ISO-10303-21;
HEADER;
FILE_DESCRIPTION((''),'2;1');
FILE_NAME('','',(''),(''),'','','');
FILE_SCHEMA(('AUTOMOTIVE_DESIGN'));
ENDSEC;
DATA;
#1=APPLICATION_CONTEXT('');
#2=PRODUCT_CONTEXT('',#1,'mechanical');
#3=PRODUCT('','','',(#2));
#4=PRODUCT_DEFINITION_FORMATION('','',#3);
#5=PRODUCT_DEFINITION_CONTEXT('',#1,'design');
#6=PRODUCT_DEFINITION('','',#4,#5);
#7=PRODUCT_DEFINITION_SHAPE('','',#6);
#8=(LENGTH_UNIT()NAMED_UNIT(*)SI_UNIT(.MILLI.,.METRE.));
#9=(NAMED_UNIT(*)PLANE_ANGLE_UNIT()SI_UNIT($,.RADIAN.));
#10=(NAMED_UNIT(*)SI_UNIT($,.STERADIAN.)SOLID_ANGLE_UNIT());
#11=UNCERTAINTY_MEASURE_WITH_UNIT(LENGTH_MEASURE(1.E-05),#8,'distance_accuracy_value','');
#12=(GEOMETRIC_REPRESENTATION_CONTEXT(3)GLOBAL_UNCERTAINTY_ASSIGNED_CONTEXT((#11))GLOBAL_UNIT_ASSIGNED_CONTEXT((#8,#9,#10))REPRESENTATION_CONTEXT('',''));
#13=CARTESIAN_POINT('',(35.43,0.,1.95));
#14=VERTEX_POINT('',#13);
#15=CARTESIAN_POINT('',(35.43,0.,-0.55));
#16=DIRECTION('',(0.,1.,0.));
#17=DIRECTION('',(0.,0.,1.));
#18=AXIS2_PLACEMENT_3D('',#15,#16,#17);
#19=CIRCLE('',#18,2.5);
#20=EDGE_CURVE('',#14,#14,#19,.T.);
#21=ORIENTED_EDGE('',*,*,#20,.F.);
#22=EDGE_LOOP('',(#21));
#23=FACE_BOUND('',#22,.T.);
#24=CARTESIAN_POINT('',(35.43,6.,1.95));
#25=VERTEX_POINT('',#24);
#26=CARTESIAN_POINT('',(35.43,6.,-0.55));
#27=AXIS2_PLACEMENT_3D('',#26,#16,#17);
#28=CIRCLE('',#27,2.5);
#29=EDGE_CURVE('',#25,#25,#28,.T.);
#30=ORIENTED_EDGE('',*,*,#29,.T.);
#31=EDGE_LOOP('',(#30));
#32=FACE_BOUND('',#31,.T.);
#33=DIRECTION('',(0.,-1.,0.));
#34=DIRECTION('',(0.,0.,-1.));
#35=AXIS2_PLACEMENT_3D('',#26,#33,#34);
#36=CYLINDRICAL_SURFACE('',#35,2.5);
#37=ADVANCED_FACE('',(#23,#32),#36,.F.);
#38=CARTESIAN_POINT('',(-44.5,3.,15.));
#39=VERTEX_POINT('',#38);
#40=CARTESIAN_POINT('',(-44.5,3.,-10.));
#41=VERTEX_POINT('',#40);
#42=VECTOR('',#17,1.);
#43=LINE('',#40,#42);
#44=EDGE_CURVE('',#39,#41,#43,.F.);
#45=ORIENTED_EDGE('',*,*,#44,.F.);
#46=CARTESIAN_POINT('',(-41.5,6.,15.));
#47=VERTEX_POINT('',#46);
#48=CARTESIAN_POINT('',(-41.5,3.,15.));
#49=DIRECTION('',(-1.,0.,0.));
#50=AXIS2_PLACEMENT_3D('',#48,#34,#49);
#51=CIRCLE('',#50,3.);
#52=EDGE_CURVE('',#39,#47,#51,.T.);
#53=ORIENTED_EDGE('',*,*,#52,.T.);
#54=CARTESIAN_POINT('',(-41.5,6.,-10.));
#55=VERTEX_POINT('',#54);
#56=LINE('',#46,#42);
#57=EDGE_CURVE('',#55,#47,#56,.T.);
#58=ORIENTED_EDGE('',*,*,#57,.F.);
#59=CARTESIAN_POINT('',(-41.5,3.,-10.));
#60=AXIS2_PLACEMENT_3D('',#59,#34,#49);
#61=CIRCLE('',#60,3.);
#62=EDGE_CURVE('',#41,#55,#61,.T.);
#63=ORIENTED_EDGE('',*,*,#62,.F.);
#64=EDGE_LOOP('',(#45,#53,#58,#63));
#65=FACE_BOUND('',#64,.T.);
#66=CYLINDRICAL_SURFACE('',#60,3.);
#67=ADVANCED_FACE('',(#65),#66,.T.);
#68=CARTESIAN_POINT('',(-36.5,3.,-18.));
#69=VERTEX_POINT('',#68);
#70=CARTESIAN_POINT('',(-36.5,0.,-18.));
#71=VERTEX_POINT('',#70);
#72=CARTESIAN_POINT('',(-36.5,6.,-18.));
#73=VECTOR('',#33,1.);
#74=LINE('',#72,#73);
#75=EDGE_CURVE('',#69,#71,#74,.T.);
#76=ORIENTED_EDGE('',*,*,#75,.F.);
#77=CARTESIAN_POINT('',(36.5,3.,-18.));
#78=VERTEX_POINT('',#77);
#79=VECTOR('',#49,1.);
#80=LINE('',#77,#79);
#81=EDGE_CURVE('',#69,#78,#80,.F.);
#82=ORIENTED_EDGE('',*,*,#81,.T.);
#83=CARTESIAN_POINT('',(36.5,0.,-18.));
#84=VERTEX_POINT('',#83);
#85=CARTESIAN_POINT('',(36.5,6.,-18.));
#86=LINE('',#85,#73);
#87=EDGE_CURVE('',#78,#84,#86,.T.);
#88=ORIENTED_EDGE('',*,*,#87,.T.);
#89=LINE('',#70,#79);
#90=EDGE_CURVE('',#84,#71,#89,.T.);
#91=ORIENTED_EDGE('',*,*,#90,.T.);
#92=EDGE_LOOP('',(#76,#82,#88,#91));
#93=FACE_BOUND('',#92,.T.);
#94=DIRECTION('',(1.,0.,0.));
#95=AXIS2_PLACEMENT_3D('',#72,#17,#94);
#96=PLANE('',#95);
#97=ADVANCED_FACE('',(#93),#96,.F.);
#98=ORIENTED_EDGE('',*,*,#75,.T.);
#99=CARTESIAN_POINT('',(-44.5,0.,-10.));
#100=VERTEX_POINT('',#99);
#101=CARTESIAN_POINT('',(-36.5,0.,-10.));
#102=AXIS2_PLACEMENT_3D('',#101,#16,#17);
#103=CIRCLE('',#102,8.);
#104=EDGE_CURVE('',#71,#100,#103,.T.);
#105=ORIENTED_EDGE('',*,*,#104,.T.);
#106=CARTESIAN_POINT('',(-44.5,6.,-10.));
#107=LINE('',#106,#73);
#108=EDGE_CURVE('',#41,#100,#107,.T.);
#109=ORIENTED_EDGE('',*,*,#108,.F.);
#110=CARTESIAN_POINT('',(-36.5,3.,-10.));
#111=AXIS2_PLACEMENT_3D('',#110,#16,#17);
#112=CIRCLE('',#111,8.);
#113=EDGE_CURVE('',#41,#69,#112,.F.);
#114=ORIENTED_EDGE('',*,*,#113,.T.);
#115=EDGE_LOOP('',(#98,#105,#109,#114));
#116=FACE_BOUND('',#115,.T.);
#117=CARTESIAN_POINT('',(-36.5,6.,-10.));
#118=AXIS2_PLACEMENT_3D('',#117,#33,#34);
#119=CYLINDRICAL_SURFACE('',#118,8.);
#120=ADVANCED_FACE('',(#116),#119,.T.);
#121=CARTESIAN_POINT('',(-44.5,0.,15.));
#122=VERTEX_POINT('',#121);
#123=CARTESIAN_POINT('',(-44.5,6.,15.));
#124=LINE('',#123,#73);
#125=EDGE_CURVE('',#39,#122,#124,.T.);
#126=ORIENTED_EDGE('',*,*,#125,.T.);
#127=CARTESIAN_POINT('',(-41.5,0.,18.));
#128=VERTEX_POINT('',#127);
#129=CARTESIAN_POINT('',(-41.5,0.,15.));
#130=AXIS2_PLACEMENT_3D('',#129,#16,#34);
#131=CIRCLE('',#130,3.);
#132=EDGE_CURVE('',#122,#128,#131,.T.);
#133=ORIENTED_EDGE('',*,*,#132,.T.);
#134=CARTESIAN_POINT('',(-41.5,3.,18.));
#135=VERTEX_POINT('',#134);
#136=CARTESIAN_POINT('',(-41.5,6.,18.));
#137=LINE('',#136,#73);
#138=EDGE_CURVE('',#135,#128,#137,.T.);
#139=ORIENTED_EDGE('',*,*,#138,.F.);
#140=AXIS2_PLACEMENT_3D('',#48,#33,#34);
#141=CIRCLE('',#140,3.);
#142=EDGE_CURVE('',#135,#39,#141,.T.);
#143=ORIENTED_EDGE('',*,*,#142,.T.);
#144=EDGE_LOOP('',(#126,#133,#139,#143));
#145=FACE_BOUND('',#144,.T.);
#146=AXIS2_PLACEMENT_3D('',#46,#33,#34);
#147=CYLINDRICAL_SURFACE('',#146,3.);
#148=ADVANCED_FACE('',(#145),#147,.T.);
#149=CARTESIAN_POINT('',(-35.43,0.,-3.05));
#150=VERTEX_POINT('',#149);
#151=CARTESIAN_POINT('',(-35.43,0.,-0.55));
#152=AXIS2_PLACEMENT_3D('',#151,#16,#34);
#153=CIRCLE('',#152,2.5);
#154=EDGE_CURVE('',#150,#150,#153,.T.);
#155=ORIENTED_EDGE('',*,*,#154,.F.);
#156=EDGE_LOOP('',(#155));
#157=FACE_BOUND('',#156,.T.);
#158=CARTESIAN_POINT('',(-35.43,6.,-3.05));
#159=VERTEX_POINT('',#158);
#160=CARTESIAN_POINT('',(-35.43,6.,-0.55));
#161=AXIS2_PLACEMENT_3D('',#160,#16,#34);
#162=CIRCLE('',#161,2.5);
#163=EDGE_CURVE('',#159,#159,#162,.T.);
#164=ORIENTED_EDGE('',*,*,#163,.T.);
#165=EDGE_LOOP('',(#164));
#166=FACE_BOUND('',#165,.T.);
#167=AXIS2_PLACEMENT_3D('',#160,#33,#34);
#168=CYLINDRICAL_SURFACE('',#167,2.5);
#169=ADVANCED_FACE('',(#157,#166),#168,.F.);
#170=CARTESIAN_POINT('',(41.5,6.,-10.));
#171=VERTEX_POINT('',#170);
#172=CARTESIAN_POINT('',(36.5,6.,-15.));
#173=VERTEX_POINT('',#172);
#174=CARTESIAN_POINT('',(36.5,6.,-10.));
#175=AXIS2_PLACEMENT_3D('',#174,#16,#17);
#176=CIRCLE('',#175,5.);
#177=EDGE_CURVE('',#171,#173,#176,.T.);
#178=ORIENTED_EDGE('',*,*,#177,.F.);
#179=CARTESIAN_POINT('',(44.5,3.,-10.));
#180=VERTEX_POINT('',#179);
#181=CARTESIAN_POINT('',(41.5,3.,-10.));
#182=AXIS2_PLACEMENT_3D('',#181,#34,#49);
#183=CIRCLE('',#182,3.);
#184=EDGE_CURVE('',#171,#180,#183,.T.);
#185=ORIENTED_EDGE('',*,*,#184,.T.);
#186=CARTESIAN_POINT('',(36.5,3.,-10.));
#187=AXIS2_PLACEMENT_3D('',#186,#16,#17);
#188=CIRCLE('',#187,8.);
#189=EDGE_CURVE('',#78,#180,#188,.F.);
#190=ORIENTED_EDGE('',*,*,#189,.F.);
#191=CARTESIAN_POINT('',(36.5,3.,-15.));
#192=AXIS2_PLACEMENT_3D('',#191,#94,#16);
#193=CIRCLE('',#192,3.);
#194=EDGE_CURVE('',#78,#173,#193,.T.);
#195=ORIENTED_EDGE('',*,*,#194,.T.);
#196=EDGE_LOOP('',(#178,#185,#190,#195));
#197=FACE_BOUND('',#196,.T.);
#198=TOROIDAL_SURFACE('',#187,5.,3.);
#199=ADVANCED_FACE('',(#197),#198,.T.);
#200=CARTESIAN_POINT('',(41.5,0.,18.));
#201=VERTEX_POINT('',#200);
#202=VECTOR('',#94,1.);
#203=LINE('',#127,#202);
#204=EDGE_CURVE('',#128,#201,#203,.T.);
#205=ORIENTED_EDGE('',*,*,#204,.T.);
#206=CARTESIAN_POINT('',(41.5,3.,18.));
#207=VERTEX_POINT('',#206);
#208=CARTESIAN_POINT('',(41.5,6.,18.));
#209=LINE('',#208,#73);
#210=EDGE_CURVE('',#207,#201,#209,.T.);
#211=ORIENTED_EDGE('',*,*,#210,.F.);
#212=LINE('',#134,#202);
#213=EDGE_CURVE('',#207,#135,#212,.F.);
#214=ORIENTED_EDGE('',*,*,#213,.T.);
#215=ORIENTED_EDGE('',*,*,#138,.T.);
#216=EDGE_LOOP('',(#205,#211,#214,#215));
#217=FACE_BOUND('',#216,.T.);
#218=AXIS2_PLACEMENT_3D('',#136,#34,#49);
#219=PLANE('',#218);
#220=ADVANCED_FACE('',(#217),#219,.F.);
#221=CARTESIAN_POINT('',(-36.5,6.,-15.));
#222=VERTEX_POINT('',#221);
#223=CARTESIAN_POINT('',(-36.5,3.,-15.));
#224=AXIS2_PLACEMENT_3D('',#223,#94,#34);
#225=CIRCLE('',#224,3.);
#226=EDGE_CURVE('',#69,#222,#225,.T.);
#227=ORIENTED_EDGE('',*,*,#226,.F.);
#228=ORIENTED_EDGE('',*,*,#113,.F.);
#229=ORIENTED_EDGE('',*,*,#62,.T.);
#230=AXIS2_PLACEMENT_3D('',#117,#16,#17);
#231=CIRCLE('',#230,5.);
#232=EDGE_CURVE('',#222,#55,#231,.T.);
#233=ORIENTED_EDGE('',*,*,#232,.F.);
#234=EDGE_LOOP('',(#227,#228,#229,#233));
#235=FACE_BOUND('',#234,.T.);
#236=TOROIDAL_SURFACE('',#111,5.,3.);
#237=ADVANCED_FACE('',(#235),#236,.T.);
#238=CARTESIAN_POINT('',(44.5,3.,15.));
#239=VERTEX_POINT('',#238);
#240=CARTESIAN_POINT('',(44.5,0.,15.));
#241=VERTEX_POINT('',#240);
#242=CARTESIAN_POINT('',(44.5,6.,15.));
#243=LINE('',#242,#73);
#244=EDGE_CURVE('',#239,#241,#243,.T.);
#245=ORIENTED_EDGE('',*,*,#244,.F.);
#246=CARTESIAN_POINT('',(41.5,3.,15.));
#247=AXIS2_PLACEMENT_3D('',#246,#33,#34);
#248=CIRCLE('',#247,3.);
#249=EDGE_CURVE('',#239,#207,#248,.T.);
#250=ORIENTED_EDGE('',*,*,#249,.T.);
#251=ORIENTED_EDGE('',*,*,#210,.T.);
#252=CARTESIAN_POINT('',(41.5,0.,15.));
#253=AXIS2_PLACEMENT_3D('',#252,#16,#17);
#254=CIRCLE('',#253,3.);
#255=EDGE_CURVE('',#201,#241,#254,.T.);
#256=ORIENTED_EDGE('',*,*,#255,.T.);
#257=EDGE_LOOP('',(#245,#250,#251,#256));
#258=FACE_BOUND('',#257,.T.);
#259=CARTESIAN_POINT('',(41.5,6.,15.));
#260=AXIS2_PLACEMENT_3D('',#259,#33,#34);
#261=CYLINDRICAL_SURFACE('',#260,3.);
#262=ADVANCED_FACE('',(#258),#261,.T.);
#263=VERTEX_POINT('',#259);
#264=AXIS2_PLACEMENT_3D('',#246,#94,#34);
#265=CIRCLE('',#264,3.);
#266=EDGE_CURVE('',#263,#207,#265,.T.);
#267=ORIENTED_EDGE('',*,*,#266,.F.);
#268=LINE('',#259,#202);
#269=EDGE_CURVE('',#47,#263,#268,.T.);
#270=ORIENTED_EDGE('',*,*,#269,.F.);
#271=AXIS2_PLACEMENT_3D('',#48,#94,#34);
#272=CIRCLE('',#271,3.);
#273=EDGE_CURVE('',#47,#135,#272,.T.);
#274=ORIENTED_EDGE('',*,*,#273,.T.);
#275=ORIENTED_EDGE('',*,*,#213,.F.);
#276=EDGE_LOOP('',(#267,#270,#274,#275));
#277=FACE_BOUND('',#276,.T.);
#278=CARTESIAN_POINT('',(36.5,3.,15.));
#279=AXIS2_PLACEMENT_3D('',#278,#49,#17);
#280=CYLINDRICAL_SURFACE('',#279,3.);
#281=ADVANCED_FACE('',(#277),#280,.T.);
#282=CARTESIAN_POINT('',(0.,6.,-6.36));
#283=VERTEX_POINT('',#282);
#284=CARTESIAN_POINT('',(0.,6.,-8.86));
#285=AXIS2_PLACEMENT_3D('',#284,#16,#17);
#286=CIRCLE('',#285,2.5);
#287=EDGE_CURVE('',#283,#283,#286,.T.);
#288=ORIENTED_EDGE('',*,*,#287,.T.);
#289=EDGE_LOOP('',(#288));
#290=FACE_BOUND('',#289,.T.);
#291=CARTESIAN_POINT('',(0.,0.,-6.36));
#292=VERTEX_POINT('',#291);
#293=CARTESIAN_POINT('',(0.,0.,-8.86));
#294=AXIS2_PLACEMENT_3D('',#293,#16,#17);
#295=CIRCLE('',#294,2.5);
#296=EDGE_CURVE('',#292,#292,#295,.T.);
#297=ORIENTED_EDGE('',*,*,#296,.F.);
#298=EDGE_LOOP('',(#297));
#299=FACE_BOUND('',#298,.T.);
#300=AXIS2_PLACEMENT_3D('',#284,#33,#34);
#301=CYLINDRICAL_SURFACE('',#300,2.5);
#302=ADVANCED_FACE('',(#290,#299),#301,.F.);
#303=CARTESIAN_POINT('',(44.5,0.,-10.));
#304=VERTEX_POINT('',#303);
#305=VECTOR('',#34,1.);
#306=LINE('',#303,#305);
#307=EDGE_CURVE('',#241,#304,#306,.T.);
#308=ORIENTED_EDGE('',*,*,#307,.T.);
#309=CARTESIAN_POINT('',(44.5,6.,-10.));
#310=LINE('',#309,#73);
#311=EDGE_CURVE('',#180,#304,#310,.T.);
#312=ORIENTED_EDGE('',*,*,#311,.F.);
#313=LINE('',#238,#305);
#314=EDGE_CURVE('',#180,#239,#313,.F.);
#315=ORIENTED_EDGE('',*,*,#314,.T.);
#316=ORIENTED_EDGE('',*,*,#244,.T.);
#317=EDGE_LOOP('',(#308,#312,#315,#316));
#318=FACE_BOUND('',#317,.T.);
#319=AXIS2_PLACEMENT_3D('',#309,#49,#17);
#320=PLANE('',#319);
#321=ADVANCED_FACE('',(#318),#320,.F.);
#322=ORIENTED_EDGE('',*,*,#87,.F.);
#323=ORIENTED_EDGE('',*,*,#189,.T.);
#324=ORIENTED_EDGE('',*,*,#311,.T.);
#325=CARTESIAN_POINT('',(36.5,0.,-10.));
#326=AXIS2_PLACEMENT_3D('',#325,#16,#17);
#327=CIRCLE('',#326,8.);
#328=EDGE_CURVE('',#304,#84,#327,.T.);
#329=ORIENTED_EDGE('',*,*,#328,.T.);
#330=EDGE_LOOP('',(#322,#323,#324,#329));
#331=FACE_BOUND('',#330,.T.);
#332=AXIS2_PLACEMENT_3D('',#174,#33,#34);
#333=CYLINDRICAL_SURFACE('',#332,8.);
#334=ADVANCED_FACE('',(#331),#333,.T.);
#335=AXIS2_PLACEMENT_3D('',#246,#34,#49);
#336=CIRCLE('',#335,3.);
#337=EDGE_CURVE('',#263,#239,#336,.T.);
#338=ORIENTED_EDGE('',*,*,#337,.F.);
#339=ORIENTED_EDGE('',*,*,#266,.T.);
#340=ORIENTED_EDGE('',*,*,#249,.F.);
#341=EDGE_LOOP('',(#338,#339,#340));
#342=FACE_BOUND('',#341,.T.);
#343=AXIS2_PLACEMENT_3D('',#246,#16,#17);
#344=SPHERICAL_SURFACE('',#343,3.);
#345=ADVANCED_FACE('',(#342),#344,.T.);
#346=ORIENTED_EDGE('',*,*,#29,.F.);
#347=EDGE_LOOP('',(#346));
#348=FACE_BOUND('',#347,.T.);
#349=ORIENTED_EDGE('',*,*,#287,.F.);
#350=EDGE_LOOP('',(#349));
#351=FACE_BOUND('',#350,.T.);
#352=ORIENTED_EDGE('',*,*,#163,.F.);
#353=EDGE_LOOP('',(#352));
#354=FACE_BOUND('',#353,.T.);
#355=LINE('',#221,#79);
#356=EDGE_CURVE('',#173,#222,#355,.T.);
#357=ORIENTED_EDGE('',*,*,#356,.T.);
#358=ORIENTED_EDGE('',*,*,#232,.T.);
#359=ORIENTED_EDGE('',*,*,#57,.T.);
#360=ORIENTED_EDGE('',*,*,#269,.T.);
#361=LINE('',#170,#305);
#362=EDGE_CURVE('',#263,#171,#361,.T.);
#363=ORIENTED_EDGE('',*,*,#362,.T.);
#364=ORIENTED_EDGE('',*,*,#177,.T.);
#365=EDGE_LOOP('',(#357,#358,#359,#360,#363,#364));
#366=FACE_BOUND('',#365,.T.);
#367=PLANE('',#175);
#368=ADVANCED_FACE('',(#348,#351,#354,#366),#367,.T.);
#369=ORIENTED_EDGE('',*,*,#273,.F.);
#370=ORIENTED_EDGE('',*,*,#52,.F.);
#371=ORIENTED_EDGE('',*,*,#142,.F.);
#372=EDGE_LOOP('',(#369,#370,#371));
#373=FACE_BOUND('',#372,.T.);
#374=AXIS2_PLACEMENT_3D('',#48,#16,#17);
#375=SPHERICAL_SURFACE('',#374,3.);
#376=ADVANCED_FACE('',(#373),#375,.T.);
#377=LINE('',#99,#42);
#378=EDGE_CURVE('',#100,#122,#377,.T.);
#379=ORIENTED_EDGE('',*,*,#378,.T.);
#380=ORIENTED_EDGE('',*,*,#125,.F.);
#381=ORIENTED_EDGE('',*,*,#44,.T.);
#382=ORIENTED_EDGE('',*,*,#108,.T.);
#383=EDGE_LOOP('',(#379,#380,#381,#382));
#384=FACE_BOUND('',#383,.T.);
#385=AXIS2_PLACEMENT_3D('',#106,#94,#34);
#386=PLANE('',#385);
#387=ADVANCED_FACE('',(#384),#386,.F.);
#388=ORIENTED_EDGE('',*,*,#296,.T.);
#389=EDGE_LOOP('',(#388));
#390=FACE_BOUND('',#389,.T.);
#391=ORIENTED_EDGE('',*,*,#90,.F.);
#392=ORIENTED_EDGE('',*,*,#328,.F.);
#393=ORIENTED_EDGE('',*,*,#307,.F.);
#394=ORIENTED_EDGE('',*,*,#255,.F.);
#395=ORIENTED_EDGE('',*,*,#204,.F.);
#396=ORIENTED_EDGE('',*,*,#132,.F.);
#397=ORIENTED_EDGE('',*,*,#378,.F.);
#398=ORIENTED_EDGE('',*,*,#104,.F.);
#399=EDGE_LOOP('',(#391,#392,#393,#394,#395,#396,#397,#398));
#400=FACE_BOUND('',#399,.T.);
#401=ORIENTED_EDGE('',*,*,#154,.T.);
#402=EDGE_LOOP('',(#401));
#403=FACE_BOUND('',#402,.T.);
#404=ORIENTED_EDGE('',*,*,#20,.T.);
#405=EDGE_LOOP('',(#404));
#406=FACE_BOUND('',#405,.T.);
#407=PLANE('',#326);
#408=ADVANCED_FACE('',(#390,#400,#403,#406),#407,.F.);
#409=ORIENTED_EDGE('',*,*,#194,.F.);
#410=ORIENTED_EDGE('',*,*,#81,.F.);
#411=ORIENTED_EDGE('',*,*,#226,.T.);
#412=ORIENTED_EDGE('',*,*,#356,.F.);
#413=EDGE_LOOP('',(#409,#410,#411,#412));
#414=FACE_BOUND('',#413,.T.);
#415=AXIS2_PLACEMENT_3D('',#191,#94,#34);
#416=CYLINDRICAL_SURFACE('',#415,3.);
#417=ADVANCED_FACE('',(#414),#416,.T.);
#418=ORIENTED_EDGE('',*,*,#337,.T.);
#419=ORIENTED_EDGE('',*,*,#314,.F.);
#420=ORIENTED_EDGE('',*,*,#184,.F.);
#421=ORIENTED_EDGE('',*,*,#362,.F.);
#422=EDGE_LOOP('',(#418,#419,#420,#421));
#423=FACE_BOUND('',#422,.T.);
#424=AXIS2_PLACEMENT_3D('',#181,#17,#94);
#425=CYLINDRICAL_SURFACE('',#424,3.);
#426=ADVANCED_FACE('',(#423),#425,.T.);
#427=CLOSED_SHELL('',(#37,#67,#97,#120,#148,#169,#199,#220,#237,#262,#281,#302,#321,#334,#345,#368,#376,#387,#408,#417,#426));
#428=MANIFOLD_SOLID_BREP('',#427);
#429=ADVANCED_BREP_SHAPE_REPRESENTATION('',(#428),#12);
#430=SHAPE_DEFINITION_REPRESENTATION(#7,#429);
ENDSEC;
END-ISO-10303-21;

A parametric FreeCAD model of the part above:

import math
import FreeCAD as App
import Part
import Sketcher
from FreeCAD import Vector
Q = App.Units.Quantity


def edges_at(feature, points):
    """Names of the edges that pass closest to the given points."""
    edges = feature.Shape.Edges
    near = lambda p: min(range(len(edges)), key=lambda i: edges[i].distToShape(Part.Vertex(*p))[0])
    return sorted({f"Edge{near(p) + 1}" for p in points})

doc = App.newDocument("Part")
body = doc.addObject("PartDesign::Body", "Body")

# Sketch on XZ plane
sketch1 = doc.addObject("Sketcher::SketchObject", "Sketch")
body.addObject(sketch1)
sketch1.AttachmentSupport = (doc.XZ_Plane, [""])
sketch1.MapMode = "FlatFace"
sketch1.addGeometry([
    Part.LineSegment(Vector(36.5, -18, 0), Vector(-36.5, -18, 0)),  # 0
    Part.ArcOfCircle(Part.Circle(Vector(-36.5, -10, 0), Vector(0, 0, 1), 8), math.radians(-180), math.radians(-90)),  # 1
    Part.LineSegment(Vector(-44.5, -10, 0), Vector(-44.5, 15, 0)),  # 2
    Part.ArcOfCircle(Part.Circle(Vector(-41.5, 15, 0), Vector(0, 0, 1), 3), math.radians(90), math.radians(180)),  # 3
    Part.LineSegment(Vector(-41.5, 18, 0), Vector(41.5, 18, 0)),  # 4
    Part.ArcOfCircle(Part.Circle(Vector(41.5, 15, 0), Vector(0, 0, 1), 3), math.radians(0), math.radians(90)),  # 5
    Part.LineSegment(Vector(44.5, 15, 0), Vector(44.5, -10, 0)),  # 6
    Part.ArcOfCircle(Part.Circle(Vector(36.5, -10, 0), Vector(0, 0, 1), 8), math.radians(-90), math.radians(0)),  # 7
    Part.Circle(Vector(35.4, -0.6, 0), Vector(0, 0, 1), 2.5),  # 8
    Part.Circle(Vector(-35.4, -0.6, 0), Vector(0, 0, 1), 2.5),  # 9
    Part.Circle(Vector(0, -8.9, 0), Vector(0, 0, 1), 2.5),  # 10
], False)
sketch1.addConstraint([
    Sketcher.Constraint("Tangent", 0, 2, 1, 2),
    Sketcher.Constraint("Tangent", 1, 1, 2, 1),
    Sketcher.Constraint("Tangent", 2, 2, 3, 2),
    Sketcher.Constraint("Tangent", 3, 1, 4, 1),
    Sketcher.Constraint("Tangent", 4, 2, 5, 2),
    Sketcher.Constraint("Tangent", 5, 1, 6, 1),
    Sketcher.Constraint("Tangent", 6, 2, 7, 2),
    Sketcher.Constraint("Tangent", 7, 1, 0, 1),
    Sketcher.Constraint("Horizontal", 0),
    Sketcher.Constraint("Vertical", 2),
    Sketcher.Constraint("Horizontal", 4),
    Sketcher.Constraint("Vertical", 6),
    Sketcher.Constraint("Equal", 3, 5),
    Sketcher.Constraint("Equal", 1, 7),
    Sketcher.Constraint("Equal", 8, 9),
    Sketcher.Constraint("Equal", 9, 10),
    Sketcher.Constraint("Symmetric", 8, 3, 9, 3, -2),
    Sketcher.Constraint("PointOnObject", 10, 3, -2),
    Sketcher.Constraint("Diameter", 8, Q("5 mm")),
    Sketcher.Constraint("Radius", 1, Q("8 mm")),
    Sketcher.Constraint("Radius", 3, Q("3 mm")),
    Sketcher.Constraint("DistanceX", 0, 2, 0, 1, Q("73 mm")),
    Sketcher.Constraint("DistanceY", 2, 1, 2, 2, Q("25 mm")),
    Sketcher.Constraint("DistanceY", 1, 3, -1, 1, Q("10 mm")),
    Sketcher.Constraint("DistanceX", 1, 3, -1, 1, Q("36.5 mm")),
    Sketcher.Constraint("DistanceX", -1, 1, 8, 3, Q("35.43 mm")),
    Sketcher.Constraint("DistanceY", 8, 3, -1, 1, Q("0.55 mm")),
    Sketcher.Constraint("DistanceY", 10, 3, -1, 1, Q("8.86 mm")),
])
pad1 = doc.addObject("PartDesign::Pad", "Pad")
body.addObject(pad1)
pad1.Profile = sketch1
pad1.Length = 6
pad1.Reversed = True
doc.recompute()

fillet = doc.addObject("PartDesign::Fillet", "Fillet")
body.addObject(fillet)
fillet.Base = (pad1, edges_at(pad1, [
    (-42.157, 6, -15.657),
    (-44.5, 6, 2.5),
    (-43.621, 6, 17.121),
    (0, 6, 18),
    (43.621, 6, 17.121),
    (44.5, 6, 2.5),
    (42.157, 6, -15.657),
    (0, 6, -18),
]))
fillet.Radius = 3

doc.recompute()
